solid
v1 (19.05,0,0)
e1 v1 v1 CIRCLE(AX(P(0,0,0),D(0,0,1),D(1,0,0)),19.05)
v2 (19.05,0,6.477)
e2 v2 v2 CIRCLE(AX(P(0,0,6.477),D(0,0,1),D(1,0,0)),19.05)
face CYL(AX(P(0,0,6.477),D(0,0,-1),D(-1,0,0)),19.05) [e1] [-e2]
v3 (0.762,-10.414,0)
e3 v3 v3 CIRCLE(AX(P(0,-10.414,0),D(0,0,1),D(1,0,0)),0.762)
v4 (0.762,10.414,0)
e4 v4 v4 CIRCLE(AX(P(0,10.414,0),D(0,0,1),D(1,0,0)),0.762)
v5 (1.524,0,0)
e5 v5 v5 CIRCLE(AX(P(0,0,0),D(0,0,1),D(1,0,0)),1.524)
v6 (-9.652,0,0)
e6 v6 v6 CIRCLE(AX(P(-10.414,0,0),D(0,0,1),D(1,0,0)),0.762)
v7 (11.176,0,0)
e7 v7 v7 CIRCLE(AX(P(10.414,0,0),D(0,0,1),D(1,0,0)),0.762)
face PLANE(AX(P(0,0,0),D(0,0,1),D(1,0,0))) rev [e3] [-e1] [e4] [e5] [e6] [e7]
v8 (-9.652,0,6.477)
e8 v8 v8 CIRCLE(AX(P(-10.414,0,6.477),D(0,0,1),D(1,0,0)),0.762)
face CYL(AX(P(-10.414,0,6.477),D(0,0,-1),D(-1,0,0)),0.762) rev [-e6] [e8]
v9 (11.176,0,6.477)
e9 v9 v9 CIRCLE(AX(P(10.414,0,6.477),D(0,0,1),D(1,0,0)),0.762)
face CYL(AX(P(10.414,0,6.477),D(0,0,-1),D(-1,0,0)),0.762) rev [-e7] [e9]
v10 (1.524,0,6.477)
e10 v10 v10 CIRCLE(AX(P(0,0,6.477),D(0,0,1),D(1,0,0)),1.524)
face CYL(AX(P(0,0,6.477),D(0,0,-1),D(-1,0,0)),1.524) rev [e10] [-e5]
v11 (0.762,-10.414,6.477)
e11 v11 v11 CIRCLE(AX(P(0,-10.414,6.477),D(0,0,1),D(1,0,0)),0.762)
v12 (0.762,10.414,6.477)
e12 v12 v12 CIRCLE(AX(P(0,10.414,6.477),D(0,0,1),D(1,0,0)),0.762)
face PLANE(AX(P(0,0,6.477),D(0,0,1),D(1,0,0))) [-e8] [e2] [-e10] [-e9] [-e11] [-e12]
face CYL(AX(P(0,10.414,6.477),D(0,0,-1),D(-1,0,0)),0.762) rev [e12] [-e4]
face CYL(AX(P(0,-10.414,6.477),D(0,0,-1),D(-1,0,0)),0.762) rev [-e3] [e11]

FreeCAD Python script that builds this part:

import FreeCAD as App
import Part
import Sketcher
Q = App.Units.Quantity

doc = App.newDocument("Part")
params = doc.addObject("Spreadsheet::Sheet", "Params")
for row, (alias, value) in enumerate([
    ("sketch1_diameter", "1.5 in"),
    ("sketch1_diameter2", "0.06 in"),
    ("sketch1_diameter3", "0.12 in"),
    ("pad1_length", "0.255 in"),
], start=1):
    params.set(f"A{row}", alias)
    params.set(f"B{row}", "=" + value)
    params.setAlias(f"B{row}", alias)

body = doc.addObject("PartDesign::Body", "Body")

# Sketch on XY plane
sketch1 = body.newObject("Sketcher::SketchObject", "Sketch")
sketch1.AttachmentSupport = (doc.getObject("XY_Plane"), [""])
sketch1.MapMode = "FlatFace"
sketch1.addGeometry([
    Part.Circle(App.Vector(0, 0, 0), App.Vector(0, 0, 1), 19.1),  # 0
    Part.Circle(App.Vector(0, -10.4, 0), App.Vector(0, 0, 1), 0.8),  # 1
    Part.Circle(App.Vector(-10.4, 0, 0), App.Vector(0, 0, 1), 0.8),  # 2
    Part.Circle(App.Vector(0, 0, 0), App.Vector(0, 0, 1), 1.5),  # 3
    Part.Circle(App.Vector(10.4, 0, 0), App.Vector(0, 0, 1), 0.8),  # 4
    Part.Circle(App.Vector(0, 10.4, 0), App.Vector(0, 0, 1), 0.8),  # 5
], False)
sketch1.addConstraint([
    Sketcher.Constraint("Coincident", 0, 3, -1, 1),
    Sketcher.Constraint("Coincident", 3, 3, -1, 1),
    Sketcher.Constraint("Equal", 1, 2),
    Sketcher.Constraint("Equal", 2, 4),
    Sketcher.Constraint("Equal", 4, 5),
    Sketcher.Constraint("Symmetric", 2, 3, 4, 3, -1, 1),
    Sketcher.Constraint("Symmetric", 1, 3, 5, 3, -1, 1),
    Sketcher.Constraint("PointOnObject", 1, 3, -2),
    Sketcher.Constraint("PointOnObject", 2, 3, -1),
    Sketcher.Constraint("Diameter", 0, Q("1.5 in")),
    Sketcher.Constraint("Diameter", 1, Q("0.06 in")),
    Sketcher.Constraint("Diameter", 3, Q("0.12 in")),
    Sketcher.Constraint("DistanceY", 1, 3, -1, 1, Q("0.41 in")),
    Sketcher.Constraint("DistanceX", 2, 3, -1, 1, Q("0.41 in")),
])
sketch1.setExpression("Constraints[9]", "Params.sketch1_diameter")
sketch1.setExpression("Constraints[10]", "Params.sketch1_diameter2")
sketch1.setExpression("Constraints[11]", "Params.sketch1_diameter3")
pad1 = body.newObject("PartDesign::Pad", "Pad")
pad1.Profile = sketch1
pad1.setExpression("Length", "Params.pad1_length")

doc.recompute()
